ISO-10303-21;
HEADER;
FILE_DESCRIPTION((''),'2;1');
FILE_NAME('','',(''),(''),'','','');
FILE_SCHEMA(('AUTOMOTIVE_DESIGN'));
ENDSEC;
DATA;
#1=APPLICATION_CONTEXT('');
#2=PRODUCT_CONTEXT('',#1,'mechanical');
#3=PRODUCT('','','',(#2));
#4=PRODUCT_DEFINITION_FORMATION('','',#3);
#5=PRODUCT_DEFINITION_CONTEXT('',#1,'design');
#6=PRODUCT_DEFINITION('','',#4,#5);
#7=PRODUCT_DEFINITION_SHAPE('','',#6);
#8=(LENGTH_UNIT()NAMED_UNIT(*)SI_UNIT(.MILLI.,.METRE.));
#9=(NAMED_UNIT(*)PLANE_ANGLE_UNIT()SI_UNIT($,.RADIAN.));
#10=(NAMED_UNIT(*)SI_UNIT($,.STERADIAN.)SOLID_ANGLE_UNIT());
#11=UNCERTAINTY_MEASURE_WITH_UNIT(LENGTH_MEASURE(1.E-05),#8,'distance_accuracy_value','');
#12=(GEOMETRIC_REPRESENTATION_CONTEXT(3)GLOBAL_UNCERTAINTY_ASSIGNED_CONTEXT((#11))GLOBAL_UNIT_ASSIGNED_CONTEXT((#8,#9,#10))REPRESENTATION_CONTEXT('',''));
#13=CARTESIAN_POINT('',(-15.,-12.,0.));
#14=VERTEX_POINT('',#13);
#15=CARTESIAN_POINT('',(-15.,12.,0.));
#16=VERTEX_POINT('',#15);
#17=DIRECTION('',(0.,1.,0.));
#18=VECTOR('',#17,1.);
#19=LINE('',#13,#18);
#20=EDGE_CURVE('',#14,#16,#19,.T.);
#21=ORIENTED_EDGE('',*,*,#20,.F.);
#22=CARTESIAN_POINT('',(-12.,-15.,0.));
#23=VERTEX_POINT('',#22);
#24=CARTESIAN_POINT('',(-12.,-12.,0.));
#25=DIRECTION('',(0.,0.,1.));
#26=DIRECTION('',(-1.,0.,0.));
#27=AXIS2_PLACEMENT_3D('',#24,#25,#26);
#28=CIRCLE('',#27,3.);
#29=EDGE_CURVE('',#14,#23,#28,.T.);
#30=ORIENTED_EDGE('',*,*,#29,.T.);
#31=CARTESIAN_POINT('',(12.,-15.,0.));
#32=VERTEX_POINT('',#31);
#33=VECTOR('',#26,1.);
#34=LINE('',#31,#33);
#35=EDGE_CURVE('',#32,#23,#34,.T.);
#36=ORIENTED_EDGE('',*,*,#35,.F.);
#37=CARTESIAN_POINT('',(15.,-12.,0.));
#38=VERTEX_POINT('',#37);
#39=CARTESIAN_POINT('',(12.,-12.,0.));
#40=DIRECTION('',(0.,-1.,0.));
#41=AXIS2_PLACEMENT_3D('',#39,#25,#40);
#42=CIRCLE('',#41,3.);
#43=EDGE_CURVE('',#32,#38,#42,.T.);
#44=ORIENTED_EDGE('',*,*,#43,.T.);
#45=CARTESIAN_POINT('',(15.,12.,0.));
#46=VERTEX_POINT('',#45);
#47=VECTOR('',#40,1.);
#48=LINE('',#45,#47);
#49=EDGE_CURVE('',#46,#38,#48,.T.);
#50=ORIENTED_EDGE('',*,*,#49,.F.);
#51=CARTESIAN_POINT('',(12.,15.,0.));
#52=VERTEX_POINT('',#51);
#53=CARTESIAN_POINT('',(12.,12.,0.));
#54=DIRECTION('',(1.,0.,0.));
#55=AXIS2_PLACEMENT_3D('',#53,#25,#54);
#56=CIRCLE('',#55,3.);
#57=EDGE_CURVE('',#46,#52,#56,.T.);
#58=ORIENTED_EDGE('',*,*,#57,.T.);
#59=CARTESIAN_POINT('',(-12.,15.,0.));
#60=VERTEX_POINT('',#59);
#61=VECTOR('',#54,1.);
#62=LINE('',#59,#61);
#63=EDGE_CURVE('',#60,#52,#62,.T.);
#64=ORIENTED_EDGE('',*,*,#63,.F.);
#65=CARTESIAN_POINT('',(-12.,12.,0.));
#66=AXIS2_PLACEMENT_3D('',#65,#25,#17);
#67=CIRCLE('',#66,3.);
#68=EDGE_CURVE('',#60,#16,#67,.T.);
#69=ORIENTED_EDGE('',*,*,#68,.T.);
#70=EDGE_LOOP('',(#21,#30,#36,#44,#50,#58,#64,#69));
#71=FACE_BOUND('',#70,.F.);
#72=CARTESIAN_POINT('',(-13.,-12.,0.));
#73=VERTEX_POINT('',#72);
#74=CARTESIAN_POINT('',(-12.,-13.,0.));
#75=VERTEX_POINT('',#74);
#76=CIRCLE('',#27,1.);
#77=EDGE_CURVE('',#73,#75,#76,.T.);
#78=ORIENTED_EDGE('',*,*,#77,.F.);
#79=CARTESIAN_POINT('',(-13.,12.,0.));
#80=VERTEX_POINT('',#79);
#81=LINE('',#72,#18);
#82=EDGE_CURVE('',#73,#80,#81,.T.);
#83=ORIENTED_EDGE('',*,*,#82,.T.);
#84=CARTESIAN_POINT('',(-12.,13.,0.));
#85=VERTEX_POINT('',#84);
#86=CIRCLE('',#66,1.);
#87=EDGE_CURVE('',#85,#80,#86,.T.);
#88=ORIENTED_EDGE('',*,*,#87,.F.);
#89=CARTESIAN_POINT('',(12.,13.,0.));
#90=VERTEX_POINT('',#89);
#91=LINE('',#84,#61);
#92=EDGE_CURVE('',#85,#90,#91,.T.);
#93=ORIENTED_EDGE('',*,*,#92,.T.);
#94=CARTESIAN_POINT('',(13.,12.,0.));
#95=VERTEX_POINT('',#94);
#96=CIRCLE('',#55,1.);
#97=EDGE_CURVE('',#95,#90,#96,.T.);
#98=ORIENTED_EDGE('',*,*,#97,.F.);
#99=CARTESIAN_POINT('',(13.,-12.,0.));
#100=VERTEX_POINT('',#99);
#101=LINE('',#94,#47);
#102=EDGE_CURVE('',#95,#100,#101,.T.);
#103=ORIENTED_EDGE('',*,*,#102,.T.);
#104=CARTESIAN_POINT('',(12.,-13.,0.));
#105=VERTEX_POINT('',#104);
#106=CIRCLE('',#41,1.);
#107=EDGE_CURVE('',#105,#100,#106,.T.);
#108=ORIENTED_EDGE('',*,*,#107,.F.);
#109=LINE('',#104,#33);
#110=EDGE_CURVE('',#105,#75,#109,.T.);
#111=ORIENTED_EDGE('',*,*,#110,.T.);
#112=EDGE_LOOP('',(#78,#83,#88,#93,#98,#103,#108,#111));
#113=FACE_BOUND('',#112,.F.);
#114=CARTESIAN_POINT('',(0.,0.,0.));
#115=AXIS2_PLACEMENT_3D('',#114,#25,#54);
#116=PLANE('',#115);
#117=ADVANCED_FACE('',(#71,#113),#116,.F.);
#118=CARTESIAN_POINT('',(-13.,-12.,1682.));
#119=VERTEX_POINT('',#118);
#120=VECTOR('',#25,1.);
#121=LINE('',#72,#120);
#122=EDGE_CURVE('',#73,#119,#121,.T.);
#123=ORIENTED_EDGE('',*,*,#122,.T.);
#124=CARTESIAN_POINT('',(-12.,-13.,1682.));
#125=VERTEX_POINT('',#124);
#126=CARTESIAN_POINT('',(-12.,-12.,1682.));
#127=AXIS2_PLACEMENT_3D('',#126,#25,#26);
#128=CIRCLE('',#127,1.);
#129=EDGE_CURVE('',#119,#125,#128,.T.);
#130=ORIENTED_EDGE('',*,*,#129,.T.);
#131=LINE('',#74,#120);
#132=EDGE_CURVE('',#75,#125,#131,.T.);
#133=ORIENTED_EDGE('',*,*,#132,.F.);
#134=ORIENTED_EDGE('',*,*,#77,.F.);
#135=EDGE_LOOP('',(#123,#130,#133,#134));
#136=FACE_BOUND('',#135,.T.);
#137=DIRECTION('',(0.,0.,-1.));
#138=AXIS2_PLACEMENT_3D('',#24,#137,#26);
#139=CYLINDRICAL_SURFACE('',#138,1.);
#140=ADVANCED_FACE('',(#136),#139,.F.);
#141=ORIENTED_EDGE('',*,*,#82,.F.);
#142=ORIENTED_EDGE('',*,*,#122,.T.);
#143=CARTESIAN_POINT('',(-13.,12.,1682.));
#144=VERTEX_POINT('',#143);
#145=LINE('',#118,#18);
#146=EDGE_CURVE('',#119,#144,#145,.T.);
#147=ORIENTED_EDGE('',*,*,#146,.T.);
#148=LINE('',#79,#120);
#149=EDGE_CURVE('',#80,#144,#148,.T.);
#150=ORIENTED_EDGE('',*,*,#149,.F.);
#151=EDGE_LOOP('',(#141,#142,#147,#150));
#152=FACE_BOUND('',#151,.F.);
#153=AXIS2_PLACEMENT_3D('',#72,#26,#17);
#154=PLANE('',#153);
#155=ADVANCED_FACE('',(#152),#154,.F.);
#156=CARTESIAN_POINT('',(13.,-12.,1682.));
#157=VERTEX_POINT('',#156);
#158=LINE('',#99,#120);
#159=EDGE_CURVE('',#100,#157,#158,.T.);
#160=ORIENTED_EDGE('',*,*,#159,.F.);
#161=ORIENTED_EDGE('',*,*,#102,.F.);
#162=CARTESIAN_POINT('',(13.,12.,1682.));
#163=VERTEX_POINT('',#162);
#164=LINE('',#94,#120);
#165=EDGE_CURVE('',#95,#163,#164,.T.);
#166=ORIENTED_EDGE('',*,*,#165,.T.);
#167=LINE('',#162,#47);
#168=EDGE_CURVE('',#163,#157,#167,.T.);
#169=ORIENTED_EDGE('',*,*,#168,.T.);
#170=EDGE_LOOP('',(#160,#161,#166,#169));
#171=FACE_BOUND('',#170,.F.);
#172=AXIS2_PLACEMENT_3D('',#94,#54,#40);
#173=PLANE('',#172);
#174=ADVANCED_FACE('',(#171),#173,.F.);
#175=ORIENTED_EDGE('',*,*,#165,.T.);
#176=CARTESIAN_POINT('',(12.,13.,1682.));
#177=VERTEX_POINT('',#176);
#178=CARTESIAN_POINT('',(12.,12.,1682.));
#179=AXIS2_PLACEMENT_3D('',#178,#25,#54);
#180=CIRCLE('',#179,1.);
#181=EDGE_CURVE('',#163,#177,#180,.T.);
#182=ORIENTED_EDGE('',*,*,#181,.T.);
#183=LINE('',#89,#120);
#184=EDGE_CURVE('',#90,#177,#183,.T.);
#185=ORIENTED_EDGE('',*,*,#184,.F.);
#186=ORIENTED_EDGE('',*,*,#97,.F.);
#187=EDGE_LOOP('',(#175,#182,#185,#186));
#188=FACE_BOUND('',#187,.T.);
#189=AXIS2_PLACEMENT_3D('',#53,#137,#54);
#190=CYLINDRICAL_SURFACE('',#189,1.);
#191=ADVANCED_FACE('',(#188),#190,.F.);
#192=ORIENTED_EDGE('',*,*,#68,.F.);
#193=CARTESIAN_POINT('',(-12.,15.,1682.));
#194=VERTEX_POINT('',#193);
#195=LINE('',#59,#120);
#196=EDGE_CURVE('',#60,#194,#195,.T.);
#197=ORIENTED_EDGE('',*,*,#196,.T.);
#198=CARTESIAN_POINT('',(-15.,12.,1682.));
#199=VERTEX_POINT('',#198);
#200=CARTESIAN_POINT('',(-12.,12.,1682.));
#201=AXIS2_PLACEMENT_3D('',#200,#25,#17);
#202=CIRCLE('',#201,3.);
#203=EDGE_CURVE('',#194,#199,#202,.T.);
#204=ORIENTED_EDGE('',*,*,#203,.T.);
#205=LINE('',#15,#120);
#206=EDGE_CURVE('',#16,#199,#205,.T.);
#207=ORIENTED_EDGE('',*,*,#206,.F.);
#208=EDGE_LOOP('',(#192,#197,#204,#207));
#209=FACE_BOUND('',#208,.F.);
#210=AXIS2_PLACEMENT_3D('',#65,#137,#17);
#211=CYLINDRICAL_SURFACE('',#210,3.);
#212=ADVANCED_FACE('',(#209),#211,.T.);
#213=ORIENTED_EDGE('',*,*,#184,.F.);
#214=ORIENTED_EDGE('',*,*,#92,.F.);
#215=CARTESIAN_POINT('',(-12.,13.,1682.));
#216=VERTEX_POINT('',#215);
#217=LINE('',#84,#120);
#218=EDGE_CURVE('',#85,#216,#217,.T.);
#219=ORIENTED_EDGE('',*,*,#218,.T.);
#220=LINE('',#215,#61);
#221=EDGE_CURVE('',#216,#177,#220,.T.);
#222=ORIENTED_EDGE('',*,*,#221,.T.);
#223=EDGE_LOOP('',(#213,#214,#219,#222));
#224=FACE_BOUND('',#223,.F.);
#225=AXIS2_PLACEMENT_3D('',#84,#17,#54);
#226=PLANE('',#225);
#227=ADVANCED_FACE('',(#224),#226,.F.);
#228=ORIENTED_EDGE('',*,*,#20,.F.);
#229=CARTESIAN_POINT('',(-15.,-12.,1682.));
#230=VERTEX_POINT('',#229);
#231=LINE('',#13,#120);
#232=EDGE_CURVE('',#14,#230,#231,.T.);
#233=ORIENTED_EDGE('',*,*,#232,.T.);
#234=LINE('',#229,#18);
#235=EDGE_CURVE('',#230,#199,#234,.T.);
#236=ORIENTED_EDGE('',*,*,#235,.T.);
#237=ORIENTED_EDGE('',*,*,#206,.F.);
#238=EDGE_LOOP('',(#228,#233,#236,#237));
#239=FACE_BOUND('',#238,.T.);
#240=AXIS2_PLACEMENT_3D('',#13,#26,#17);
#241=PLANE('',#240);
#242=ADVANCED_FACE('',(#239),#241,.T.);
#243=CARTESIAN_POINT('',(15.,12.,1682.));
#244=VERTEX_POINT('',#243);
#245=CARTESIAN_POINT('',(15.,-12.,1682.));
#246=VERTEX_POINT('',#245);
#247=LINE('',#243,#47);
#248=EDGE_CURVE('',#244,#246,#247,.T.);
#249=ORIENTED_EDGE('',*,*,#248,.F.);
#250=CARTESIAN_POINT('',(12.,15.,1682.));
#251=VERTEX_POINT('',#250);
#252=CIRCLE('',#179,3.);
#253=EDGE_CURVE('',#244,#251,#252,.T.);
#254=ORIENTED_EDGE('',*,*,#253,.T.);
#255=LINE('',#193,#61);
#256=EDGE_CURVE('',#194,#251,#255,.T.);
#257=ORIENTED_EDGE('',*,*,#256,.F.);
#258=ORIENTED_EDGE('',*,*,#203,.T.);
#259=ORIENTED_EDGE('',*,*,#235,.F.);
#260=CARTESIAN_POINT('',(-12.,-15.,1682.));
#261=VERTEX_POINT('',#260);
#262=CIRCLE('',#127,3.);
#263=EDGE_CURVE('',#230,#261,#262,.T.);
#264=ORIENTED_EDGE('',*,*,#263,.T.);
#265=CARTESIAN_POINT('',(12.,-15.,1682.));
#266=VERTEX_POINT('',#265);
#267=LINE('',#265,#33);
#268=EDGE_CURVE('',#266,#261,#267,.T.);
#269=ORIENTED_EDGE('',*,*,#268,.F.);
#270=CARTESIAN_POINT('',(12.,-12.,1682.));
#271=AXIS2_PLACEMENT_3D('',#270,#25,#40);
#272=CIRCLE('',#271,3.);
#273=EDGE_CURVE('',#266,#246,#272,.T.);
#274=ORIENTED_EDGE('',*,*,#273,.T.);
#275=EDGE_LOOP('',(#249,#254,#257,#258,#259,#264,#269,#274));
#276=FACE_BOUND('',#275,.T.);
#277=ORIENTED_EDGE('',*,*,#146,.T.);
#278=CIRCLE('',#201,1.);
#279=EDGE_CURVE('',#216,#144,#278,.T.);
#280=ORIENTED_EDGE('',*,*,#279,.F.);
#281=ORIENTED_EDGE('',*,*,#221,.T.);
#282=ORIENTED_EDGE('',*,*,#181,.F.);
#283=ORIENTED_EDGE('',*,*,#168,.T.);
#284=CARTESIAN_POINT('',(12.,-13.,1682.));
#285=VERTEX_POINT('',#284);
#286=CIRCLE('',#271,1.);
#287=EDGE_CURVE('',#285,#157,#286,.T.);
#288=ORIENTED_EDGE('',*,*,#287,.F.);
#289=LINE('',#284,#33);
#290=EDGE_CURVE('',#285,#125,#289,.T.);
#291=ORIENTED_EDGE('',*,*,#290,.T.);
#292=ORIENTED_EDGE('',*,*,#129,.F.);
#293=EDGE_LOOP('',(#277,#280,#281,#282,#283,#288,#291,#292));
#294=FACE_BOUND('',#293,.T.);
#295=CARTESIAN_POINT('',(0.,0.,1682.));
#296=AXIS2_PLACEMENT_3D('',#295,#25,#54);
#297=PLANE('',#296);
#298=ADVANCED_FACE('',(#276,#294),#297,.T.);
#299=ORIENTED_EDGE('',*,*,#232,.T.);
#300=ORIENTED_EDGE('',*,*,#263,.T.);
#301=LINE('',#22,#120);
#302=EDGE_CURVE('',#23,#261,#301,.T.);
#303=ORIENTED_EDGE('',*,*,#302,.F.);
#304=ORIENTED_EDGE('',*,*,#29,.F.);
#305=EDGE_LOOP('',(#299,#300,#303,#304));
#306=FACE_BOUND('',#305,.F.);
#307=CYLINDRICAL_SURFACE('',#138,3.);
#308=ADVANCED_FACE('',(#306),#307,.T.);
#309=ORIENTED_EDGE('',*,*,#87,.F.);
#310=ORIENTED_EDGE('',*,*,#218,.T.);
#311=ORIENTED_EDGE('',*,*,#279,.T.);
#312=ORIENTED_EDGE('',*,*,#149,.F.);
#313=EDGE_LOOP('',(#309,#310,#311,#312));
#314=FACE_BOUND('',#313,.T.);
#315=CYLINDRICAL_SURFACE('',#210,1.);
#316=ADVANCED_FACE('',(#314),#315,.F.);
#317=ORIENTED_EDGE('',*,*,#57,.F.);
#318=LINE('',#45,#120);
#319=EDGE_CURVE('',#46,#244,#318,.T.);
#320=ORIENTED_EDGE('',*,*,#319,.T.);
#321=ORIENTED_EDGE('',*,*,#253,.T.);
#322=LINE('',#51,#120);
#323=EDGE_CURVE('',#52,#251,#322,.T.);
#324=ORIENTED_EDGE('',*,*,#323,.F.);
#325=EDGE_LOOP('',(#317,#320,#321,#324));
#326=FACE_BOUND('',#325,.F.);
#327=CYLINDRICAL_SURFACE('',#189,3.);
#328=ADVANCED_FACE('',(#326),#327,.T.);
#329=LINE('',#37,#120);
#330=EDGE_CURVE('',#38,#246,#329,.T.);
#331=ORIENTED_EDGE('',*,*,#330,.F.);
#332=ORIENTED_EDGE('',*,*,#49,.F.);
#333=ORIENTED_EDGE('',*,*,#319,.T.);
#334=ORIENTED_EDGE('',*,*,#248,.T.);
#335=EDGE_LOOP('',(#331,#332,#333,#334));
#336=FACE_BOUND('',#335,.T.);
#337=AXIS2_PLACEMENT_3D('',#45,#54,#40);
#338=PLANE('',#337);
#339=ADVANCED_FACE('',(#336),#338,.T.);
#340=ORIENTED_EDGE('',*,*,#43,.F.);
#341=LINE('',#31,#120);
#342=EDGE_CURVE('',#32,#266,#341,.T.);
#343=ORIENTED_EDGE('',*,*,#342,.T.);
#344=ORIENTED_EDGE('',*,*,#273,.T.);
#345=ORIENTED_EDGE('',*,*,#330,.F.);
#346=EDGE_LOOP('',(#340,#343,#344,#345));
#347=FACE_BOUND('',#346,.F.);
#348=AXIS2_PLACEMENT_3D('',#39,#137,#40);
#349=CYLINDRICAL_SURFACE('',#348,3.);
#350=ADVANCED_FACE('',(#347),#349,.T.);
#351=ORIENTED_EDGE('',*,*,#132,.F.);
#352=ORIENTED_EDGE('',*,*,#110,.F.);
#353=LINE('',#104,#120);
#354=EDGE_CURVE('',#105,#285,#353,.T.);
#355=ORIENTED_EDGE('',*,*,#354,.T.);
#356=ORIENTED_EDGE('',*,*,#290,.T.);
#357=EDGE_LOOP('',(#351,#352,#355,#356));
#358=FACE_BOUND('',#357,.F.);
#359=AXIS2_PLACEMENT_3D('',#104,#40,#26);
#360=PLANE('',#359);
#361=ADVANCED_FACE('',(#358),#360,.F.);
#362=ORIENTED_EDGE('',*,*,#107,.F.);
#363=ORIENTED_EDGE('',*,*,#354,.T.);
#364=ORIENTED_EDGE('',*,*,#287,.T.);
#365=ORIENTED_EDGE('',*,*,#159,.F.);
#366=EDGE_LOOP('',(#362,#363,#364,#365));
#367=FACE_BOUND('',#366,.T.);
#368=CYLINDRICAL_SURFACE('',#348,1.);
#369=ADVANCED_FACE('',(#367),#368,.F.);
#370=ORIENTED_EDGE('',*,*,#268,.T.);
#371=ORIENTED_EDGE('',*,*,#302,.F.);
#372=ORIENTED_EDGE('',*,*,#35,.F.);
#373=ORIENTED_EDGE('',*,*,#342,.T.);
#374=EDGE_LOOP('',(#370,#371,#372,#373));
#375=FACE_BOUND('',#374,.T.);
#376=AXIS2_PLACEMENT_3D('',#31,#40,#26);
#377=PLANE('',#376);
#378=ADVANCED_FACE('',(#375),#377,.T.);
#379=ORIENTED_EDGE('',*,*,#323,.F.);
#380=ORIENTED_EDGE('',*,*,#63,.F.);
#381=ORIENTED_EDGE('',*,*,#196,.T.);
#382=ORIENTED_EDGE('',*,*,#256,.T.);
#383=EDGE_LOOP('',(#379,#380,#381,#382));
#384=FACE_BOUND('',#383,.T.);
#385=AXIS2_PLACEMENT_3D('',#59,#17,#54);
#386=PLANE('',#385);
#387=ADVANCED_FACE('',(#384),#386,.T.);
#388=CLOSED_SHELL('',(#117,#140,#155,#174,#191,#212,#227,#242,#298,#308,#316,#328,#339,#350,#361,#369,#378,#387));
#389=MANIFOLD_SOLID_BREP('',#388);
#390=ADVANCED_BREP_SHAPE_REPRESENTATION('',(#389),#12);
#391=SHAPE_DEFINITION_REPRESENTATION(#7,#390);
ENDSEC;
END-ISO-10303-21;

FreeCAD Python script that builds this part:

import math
import FreeCAD as App
import Part
import Sketcher

doc = App.newDocument("Part")
body = doc.addObject("PartDesign::Body", "Body")

# Sketch on XY plane
sketch1 = body.newObject("Sketcher::SketchObject", "Sketch")
sketch1.AttachmentSupport = (doc.getObject("XY_Plane"), [""])
sketch1.MapMode = "FlatFace"
sketch1.addGeometry([
    Part.LineSegment(App.Vector(-15, 12, 0), App.Vector(-15, -12, 0)),  # 0
    Part.ArcOfCircle(Part.Circle(App.Vector(-12, -12, 0), App.Vector(0, 0, 1), 3), math.radians(180), math.radians(270)),  # 1
    Part.LineSegment(App.Vector(-12, -15, 0), App.Vector(12, -15, 0)),  # 2
    Part.ArcOfCircle(Part.Circle(App.Vector(12, -12, 0), App.Vector(0, 0, 1), 3), math.radians(-90), math.radians(0)),  # 3
    Part.LineSegment(App.Vector(15, -12, 0), App.Vector(15, 12, 0)),  # 4
    Part.ArcOfCircle(Part.Circle(App.Vector(12, 12, 0), App.Vector(0, 0, 1), 3), math.radians(0), math.radians(90)),  # 5
    Part.LineSegment(App.Vector(12, 15, 0), App.Vector(-12, 15, 0)),  # 6
    Part.ArcOfCircle(Part.Circle(App.Vector(-12, 12, 0), App.Vector(0, 0, 1), 3), math.radians(90), math.radians(180)),  # 7
    Part.ArcOfCircle(Part.Circle(App.Vector(-12, 12, 0), App.Vector(0, 0, 1), 1), math.radians(90), math.radians(180)),  # 8
    Part.LineSegment(App.Vector(-12, 13, 0), App.Vector(12, 13, 0)),  # 9
    Part.ArcOfCircle(Part.Circle(App.Vector(12, 12, 0), App.Vector(0, 0, 1), 1), math.radians(0), math.radians(90)),  # 10
    Part.LineSegment(App.Vector(13, 12, 0), App.Vector(13, -12, 0)),  # 11
    Part.ArcOfCircle(Part.Circle(App.Vector(12, -12, 0), App.Vector(0, 0, 1), 1), math.radians(-90), math.radians(0)),  # 12
    Part.LineSegment(App.Vector(12, -13, 0), App.Vector(-12, -13, 0)),  # 13
    Part.ArcOfCircle(Part.Circle(App.Vector(-12, -12, 0), App.Vector(0, 0, 1), 1), math.radians(180), math.radians(270)),  # 14
    Part.LineSegment(App.Vector(-13, -12, 0), App.Vector(-13, 12, 0)),  # 15
], False)
sketch1.addConstraint([
    Sketcher.Constraint("Tangent", 0, 2, 1, 1),
    Sketcher.Constraint("Tangent", 1, 2, 2, 1),
    Sketcher.Constraint("Tangent", 2, 2, 3, 1),
    Sketcher.Constraint("Tangent", 3, 2, 4, 1),
    Sketcher.Constraint("Tangent", 4, 2, 5, 1),
    Sketcher.Constraint("Tangent", 5, 2, 6, 1),
    Sketcher.Constraint("Tangent", 6, 2, 7, 1),
    Sketcher.Constraint("Tangent", 7, 2, 0, 1),
    Sketcher.Constraint("Tangent", 8, 1, 9, 1),
    Sketcher.Constraint("Tangent", 9, 2, 10, 2),
    Sketcher.Constraint("Tangent", 10, 1, 11, 1),
    Sketcher.Constraint("Tangent", 11, 2, 12, 2),
    Sketcher.Constraint("Tangent", 12, 1, 13, 1),
    Sketcher.Constraint("Tangent", 13, 2, 14, 2),
    Sketcher.Constraint("Tangent", 14, 1, 15, 1),
    Sketcher.Constraint("Tangent", 15, 2, 8, 2),
    Sketcher.Constraint("Vertical", 0),
    Sketcher.Constraint("Horizontal", 2),
    Sketcher.Constraint("Vertical", 4),
    Sketcher.Constraint("Horizontal", 6),
    Sketcher.Constraint("Horizontal", 9),
    Sketcher.Constraint("Vertical", 11),
    Sketcher.Constraint("Horizontal", 13),
    Sketcher.Constraint("Vertical", 15),
    Sketcher.Constraint("Coincident", 8, 3, 7, 3),
    Sketcher.Constraint("Coincident", 10, 3, 5, 3),
    Sketcher.Constraint("Coincident", 12, 3, 3, 3),
    Sketcher.Constraint("Equal", 1, 3),
    Sketcher.Constraint("Equal", 3, 5),
    Sketcher.Constraint("Equal", 5, 7),
    Sketcher.Constraint("Equal", 12, 14),
    Sketcher.Constraint("Symmetric", 1, 3, 5, 3, -1, 1),
    Sketcher.Constraint("Equal", 13, 0),
    Sketcher.Constraint("Radius", 1, 3.0),
    Sketcher.Constraint("Radius", 8, 1.0),
    Sketcher.Constraint("DistanceX", 0, 2, -1, 1, 15.0),
])
pad1 = body.newObject("PartDesign::Pad", "Pad")
pad1.Profile = sketch1
pad1.Length = 1682

doc.recompute()
